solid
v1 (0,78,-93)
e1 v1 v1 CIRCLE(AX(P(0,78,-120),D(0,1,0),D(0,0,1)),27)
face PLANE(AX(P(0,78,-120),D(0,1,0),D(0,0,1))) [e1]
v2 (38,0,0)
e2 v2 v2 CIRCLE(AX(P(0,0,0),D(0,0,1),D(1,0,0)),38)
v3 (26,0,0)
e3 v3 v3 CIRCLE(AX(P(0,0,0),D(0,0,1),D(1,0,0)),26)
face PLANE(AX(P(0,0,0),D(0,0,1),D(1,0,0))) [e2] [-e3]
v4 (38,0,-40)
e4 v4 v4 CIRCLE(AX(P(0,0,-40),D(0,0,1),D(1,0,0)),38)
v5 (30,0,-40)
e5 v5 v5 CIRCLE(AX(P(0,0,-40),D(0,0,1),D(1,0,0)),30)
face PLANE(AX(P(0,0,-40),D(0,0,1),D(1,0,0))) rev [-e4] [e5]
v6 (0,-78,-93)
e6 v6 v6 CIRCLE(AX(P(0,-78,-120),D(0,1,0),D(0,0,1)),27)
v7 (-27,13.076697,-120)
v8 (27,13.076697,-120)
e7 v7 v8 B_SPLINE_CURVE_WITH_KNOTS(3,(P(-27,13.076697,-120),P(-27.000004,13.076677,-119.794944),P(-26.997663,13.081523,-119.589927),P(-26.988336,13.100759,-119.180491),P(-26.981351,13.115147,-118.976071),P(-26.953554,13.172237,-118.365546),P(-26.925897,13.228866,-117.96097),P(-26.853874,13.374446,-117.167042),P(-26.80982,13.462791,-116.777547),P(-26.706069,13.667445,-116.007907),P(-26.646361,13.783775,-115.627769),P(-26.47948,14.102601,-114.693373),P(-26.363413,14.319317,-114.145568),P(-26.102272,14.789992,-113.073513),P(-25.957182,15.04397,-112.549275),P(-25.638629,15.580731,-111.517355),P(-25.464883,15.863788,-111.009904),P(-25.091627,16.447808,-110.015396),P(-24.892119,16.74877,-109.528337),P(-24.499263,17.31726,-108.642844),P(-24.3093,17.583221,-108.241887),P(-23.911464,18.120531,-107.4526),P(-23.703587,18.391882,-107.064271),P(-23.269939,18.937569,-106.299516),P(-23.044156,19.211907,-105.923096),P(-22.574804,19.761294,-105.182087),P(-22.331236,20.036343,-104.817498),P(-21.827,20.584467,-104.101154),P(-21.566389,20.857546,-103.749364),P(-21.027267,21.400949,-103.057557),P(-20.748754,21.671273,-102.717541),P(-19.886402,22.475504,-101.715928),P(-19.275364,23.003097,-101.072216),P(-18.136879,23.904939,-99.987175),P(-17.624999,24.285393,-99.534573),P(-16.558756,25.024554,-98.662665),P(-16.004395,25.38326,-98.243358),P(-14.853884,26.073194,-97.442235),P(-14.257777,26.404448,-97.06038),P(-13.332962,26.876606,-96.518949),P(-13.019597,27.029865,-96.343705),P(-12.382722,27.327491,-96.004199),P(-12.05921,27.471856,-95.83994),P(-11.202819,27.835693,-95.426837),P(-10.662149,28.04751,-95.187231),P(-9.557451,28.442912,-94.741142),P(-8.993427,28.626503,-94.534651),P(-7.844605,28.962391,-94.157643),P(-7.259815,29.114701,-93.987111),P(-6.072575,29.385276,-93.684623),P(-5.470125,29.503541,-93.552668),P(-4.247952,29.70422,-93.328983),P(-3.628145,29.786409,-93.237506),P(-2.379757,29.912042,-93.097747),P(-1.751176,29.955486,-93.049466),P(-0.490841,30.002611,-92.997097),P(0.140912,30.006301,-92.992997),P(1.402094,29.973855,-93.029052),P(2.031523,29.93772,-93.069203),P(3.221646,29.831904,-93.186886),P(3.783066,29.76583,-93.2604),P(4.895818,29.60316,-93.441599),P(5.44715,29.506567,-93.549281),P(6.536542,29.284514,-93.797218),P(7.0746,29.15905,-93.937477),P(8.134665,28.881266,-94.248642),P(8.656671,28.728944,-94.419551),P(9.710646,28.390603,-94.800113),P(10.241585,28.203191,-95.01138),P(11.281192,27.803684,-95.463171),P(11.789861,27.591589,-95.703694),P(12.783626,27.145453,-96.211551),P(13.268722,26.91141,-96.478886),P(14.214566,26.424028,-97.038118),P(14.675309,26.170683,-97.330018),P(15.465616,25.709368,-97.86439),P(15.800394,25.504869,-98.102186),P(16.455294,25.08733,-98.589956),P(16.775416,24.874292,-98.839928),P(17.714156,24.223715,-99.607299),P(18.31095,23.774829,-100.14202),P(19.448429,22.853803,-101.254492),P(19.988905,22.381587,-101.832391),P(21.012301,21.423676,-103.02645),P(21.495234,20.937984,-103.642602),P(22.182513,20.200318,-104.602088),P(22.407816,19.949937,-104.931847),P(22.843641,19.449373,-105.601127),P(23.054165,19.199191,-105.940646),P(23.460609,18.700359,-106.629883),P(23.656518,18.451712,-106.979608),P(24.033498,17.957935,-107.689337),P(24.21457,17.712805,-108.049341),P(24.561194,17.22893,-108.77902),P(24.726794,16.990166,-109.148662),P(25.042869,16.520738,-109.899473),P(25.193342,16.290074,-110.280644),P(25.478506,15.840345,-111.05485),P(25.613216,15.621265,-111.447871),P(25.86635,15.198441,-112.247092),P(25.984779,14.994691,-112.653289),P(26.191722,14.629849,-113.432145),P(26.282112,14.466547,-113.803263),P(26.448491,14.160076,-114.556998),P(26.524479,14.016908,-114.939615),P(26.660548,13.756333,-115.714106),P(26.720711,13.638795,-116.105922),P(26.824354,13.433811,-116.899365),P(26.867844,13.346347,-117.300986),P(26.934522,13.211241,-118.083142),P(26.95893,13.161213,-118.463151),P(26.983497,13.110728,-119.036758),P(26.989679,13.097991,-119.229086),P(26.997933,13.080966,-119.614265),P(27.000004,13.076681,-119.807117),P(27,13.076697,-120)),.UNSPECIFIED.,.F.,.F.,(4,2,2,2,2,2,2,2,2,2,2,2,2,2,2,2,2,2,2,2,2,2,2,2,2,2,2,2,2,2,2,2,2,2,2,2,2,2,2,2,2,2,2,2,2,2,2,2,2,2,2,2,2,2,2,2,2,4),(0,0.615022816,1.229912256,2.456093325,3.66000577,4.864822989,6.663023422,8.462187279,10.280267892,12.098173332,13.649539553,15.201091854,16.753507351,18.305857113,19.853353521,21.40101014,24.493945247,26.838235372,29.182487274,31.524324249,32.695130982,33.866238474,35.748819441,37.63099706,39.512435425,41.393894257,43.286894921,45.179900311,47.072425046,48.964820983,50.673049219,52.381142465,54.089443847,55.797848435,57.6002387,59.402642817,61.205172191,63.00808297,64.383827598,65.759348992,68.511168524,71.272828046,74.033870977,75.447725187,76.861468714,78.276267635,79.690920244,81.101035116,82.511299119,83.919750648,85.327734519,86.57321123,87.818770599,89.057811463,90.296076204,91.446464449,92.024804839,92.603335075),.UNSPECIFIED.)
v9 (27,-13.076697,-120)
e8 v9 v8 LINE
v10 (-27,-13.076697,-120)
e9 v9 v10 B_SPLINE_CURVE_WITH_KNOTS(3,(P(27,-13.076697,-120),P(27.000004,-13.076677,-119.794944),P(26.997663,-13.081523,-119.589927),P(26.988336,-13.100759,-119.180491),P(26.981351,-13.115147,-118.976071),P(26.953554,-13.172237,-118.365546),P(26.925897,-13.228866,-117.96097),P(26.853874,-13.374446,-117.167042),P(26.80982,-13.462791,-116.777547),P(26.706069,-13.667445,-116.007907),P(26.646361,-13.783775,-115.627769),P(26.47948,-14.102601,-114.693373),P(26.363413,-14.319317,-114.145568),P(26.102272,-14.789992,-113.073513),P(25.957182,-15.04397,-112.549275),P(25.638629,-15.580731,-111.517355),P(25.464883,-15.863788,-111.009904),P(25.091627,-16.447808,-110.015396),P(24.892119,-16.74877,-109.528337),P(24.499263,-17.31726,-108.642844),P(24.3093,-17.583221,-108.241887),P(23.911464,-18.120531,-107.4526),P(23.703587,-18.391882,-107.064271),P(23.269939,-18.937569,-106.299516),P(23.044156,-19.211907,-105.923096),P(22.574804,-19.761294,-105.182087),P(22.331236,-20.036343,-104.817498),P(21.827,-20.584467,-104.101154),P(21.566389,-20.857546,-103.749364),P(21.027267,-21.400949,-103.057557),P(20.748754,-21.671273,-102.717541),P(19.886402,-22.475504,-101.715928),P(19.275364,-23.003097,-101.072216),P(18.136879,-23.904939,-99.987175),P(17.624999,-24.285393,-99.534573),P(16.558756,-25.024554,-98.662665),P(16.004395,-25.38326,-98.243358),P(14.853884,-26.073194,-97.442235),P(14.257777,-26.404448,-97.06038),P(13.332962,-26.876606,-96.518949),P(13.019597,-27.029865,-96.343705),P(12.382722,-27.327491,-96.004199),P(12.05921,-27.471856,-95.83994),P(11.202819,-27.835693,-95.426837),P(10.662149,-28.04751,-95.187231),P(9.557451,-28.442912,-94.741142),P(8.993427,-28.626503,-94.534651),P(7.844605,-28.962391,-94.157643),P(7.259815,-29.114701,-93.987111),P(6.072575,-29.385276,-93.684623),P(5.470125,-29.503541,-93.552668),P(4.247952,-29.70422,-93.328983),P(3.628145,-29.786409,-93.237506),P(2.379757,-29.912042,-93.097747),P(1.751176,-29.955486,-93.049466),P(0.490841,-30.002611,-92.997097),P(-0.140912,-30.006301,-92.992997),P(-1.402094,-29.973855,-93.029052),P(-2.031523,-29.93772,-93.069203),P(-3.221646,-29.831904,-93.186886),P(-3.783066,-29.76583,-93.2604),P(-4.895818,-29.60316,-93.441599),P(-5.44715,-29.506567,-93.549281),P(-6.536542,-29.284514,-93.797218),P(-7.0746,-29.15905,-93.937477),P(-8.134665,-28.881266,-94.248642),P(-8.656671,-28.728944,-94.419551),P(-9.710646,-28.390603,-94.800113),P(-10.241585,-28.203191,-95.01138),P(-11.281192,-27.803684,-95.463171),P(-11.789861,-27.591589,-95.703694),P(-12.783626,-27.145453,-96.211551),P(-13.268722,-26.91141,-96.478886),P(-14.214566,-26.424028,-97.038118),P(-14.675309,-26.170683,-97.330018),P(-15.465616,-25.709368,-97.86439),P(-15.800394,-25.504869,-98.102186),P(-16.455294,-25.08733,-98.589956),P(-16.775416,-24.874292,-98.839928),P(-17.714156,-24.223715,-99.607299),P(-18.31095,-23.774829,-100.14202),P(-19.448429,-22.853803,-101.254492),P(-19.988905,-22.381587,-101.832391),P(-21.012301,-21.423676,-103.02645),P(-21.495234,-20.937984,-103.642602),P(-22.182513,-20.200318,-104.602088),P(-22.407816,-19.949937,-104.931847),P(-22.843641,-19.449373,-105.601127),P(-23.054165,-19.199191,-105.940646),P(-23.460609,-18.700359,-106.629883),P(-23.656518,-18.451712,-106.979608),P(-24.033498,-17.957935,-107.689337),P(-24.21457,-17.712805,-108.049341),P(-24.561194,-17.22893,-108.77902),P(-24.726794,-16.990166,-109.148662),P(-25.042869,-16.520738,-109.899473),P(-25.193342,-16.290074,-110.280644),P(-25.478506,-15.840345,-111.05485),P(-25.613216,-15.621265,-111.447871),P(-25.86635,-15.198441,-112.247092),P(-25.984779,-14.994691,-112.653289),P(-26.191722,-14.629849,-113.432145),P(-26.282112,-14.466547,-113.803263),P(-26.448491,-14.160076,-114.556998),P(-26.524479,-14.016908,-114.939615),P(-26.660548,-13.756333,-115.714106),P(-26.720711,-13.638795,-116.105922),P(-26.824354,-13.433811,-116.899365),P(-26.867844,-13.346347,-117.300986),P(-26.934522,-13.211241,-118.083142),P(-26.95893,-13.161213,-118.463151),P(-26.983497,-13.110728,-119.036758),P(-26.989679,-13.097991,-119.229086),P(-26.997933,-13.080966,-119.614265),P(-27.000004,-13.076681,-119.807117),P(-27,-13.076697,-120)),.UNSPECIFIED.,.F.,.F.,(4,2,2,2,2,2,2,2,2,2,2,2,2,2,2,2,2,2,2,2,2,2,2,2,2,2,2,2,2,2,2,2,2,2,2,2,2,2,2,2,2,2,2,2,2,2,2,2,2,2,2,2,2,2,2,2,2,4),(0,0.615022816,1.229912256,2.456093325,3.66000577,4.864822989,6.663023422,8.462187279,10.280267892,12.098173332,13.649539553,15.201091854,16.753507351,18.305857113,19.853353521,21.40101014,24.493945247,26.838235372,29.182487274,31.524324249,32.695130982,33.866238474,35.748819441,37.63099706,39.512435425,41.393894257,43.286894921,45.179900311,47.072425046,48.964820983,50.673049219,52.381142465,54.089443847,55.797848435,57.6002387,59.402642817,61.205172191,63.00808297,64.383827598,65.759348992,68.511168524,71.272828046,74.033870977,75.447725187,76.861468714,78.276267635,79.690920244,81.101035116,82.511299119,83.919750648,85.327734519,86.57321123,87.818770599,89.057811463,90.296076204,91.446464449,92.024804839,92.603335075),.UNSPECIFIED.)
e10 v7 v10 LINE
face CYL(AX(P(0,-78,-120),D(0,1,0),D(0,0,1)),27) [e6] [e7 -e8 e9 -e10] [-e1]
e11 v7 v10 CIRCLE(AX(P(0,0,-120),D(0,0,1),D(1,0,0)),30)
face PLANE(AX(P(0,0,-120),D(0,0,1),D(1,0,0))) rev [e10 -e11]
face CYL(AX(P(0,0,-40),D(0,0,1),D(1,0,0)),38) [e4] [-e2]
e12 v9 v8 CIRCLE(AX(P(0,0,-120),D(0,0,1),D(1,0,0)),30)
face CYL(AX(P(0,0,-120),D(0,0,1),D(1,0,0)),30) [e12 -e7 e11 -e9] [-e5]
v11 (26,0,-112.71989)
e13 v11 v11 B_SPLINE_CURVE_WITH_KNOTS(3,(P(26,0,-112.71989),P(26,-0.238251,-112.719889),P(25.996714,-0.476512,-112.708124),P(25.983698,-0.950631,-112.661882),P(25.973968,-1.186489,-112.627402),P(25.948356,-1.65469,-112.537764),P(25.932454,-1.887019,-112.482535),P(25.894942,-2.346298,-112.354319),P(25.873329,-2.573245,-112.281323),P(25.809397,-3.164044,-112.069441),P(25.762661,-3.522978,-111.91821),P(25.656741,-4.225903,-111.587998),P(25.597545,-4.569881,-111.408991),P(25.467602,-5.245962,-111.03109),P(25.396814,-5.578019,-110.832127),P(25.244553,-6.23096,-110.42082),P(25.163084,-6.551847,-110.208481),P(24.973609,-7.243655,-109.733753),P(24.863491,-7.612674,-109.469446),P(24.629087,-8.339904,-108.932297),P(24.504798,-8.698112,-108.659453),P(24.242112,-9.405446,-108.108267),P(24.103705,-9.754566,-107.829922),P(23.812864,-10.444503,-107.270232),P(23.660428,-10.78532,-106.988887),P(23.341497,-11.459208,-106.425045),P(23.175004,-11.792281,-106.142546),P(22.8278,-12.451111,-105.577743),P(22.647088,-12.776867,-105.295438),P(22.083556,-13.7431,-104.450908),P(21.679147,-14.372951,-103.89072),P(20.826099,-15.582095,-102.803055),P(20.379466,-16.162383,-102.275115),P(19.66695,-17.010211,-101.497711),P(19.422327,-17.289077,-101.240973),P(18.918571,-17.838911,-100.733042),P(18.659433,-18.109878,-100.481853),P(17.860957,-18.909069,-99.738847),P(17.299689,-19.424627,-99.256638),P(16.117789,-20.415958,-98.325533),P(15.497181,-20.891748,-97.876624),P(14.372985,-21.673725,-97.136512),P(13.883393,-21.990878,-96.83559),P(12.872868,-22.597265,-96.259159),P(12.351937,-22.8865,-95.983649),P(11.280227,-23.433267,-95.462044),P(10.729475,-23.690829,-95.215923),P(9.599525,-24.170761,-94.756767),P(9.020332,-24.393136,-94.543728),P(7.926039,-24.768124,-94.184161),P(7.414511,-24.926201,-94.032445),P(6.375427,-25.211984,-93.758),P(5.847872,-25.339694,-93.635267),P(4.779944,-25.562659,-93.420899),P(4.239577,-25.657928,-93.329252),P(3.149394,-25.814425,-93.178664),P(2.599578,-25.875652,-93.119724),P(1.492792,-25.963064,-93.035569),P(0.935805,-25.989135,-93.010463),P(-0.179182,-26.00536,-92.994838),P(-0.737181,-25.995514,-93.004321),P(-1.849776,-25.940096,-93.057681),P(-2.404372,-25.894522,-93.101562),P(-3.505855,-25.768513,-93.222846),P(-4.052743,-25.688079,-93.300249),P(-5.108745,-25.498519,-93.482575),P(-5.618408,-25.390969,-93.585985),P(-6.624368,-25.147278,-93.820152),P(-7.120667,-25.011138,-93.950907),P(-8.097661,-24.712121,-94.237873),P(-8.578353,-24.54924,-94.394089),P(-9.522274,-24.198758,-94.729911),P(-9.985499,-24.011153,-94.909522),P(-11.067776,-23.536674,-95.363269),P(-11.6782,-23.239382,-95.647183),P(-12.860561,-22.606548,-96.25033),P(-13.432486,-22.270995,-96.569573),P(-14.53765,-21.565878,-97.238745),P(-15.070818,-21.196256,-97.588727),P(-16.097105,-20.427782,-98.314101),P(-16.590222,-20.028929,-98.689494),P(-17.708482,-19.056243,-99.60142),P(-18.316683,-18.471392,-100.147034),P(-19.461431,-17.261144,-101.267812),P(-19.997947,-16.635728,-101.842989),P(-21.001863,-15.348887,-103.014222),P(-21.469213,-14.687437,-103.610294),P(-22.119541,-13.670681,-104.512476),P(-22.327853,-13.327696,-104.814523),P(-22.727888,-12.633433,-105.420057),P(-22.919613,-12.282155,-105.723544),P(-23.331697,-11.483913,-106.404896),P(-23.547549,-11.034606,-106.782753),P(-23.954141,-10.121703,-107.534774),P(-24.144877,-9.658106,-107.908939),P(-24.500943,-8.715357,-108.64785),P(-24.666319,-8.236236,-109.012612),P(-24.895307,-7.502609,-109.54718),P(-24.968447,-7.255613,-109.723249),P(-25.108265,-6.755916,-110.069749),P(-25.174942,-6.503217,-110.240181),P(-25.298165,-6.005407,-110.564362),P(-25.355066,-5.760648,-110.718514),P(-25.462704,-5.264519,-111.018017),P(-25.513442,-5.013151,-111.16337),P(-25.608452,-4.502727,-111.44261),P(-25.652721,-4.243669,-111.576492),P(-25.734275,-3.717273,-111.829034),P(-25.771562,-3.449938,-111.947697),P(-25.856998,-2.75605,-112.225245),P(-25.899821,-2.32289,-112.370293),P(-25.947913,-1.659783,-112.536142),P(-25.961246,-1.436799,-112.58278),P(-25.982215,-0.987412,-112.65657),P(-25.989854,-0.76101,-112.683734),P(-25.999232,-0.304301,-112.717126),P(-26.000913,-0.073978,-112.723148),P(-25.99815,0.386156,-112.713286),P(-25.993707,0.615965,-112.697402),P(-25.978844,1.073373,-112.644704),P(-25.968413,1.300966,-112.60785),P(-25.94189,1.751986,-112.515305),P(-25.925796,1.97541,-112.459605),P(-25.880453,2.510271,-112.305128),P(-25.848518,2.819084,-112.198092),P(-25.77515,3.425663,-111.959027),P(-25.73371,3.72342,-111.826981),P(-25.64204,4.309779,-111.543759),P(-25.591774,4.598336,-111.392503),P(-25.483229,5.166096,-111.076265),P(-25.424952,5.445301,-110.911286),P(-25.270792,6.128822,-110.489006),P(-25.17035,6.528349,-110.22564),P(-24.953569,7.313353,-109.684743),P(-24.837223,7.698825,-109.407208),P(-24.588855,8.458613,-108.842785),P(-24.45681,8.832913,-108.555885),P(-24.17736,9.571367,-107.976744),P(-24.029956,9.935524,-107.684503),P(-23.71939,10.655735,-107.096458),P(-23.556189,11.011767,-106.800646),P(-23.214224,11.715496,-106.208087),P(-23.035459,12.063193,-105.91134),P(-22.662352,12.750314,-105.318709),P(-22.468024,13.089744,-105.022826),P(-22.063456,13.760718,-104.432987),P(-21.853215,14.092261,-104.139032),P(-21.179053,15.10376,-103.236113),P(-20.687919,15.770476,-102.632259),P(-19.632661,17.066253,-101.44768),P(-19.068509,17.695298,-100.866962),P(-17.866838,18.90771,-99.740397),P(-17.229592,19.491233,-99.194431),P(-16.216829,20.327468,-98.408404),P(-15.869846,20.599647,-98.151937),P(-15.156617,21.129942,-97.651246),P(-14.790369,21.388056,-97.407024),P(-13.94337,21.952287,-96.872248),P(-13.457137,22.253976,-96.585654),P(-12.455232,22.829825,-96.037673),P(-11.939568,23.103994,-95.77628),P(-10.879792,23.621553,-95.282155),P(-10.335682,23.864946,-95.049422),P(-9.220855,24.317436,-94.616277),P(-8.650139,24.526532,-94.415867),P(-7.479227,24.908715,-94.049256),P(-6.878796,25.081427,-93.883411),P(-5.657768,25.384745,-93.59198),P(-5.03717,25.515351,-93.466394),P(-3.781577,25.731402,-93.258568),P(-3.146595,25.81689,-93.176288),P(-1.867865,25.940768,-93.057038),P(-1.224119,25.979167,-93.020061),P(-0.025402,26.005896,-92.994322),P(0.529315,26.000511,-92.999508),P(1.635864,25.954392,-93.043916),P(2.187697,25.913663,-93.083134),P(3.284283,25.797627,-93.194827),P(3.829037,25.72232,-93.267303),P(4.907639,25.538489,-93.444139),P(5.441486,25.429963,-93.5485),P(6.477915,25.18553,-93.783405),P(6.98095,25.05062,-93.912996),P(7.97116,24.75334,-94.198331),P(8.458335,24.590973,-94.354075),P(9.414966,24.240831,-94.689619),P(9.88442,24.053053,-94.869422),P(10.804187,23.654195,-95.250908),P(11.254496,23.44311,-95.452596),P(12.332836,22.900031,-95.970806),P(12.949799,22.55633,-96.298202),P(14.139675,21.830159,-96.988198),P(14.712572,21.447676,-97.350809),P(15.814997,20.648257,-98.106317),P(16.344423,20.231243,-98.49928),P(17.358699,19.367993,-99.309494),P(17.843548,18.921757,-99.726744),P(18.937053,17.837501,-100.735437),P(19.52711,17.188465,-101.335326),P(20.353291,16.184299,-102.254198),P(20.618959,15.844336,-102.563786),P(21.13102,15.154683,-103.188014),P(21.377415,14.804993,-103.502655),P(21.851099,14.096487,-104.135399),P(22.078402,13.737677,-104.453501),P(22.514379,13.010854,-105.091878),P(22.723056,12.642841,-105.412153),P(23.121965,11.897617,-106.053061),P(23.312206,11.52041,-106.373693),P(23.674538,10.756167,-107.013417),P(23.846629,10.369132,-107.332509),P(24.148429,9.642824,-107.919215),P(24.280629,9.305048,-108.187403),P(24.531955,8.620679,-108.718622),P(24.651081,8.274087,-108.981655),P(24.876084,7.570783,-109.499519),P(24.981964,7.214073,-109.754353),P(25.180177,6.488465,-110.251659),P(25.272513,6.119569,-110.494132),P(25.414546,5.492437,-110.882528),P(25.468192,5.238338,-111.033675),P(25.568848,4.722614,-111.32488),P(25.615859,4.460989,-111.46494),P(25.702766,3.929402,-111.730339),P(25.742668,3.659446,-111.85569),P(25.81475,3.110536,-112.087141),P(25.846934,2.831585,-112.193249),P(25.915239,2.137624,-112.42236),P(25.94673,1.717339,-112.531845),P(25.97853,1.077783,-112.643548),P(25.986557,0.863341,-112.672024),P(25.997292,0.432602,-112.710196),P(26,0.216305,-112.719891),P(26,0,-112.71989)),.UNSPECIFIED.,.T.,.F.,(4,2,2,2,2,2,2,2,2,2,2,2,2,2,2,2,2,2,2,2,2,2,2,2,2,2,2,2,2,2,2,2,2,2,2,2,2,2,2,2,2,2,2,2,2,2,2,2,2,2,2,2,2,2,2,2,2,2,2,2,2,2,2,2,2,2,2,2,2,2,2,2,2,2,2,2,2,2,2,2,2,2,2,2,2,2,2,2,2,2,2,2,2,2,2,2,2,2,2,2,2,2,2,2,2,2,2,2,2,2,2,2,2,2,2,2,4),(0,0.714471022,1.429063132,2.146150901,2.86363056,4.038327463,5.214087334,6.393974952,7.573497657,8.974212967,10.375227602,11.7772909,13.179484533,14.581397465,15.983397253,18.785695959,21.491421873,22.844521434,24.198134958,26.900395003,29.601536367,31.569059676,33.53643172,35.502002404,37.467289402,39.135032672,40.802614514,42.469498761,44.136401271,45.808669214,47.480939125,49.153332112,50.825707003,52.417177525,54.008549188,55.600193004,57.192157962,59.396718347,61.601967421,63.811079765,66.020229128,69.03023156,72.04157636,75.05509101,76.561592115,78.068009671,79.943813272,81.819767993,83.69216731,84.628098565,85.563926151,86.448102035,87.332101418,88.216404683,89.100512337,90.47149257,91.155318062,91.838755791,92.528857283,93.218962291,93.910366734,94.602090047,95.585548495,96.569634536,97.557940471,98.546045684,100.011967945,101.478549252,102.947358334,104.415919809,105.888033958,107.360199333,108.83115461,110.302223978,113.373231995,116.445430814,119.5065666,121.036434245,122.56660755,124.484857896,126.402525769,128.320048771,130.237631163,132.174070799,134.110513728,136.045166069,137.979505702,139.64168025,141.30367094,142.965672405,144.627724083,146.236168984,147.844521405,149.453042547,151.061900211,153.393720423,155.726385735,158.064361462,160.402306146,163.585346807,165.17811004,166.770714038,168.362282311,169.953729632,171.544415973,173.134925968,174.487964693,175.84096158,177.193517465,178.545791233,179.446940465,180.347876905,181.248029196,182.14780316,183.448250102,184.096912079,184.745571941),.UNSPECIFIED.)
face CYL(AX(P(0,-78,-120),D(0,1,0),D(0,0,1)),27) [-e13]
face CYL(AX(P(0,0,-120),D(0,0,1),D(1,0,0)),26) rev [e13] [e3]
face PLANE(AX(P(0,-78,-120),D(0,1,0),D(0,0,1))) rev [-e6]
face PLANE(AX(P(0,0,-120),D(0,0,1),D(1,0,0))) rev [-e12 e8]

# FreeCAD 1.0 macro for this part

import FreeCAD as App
import Part
import Sketcher

doc = App.newDocument("Part")
body = doc.addObject("PartDesign::Body", "Body")

sketch1 = body.newObject("Sketcher::SketchObject", "Sketch")
sketch1.AttachmentSupport = (doc.getObject("XY_Plane"), [""])
sketch1.MapMode = "FlatFace"
sketch1.addGeometry(Part.Circle(App.Vector(0, 0, 0), App.Vector(0, 0, 1), 30), False)
sketch1.addGeometry(Part.Circle(App.Vector(0, 0, 0), App.Vector(0, 0, 1), 26), False)
sketch1.addConstraint(Sketcher.Constraint("Coincident", 0, 3, -1, 1))
sketch1.addConstraint(Sketcher.Constraint("Coincident", 1, 3, -1, 1))
sketch1.addConstraint(Sketcher.Constraint("Diameter", 0, 60.0))
sketch1.addConstraint(Sketcher.Constraint("Diameter", 1, 52.0))
pad1 = body.newObject("PartDesign::Pad", "Pad")
pad1.Profile = sketch1
pad1.Length = 120
pad1.Reversed = True

sketch2 = body.newObject("Sketcher::SketchObject", "Sketch001")
sketch2.AttachmentSupport = (doc.getObject("XY_Plane"), [""])
sketch2.MapMode = "FlatFace"
sketch2.addGeometry(Part.Circle(App.Vector(0, 0, 0), App.Vector(0, 0, 1), 38), False)
sketch2.addGeometry(Part.Circle(App.Vector(0, 0, 0), App.Vector(0, 0, 1), 30), False)
sketch2.addConstraint(Sketcher.Constraint("Coincident", 0, 3, -1, 1))
sketch2.addConstraint(Sketcher.Constraint("Coincident", 1, 3, -1, 1))
sketch2.addConstraint(Sketcher.Constraint("Diameter", 0, 76.0))
sketch2.addConstraint(Sketcher.Constraint("Diameter", 1, 60.0))
pad2 = body.newObject("PartDesign::Pad", "Pad001")
pad2.Profile = sketch2
pad2.Length = 40
pad2.Reversed = True

sketch3 = body.newObject("Sketcher::SketchObject", "Sketch002")
sketch3.AttachmentSupport = (doc.getObject("XZ_Plane"), [""])
sketch3.MapMode = "FlatFace"
sketch3.addGeometry(Part.Circle(App.Vector(0, -120, 0), App.Vector(0, 0, 1), 27), False)
sketch3.addConstraint(Sketcher.Constraint("PointOnObject", 0, 3, -2))
sketch3.addConstraint(Sketcher.Constraint("Diameter", 0, 54.0))
sketch3.addConstraint(Sketcher.Constraint("DistanceY", 0, 3, -1, 1, 120.0))
pad3 = body.newObject("PartDesign::Pad", "Pad002")
pad3.Profile = sketch3
pad3.Type = "TwoLengths"
pad3.Length = 78
pad3.Length2 = 78
pad3.Reversed = True

doc.recompute()
